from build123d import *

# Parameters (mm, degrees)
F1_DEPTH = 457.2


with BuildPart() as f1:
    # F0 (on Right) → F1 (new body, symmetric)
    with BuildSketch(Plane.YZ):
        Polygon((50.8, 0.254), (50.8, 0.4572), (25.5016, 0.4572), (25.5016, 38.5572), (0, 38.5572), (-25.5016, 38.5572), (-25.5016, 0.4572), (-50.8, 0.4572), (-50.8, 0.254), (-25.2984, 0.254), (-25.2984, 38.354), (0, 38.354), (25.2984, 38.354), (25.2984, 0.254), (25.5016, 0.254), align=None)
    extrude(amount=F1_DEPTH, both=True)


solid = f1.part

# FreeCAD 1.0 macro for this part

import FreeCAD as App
import Part
import Sketcher
Q = App.Units.Quantity


def add_polygon(sketch, points):
    """Adds a closed chain of lines whose ends are joined by coincident constraints."""
    first, n = sketch.GeometryCount, len(points)
    for a, b in zip(points, points[1:] + points[:1]):
        sketch.addGeometry(Part.LineSegment(App.Vector(*a, 0), App.Vector(*b, 0)), False)
    for i in range(n):
        sketch.addConstraint(Sketcher.Constraint("Coincident", first + i, 2, first + (i + 1) % n, 1))

doc = App.newDocument("Part")
body = doc.addObject("PartDesign::Body", "Body")

# Sketch on YZ plane
sketch1 = body.newObject("Sketcher::SketchObject", "Sketch")
sketch1.AttachmentSupport = (doc.getObject("YZ_Plane"), [""])
sketch1.MapMode = "FlatFace"
add_polygon(sketch1, [(50.8, 0.25), (50.8, 0.46), (25.5, 0.46), (25.5, 38.56), (-25.5, 38.56), (-25.5, 0.46), (-50.8, 0.46), (-50.8, 0.25), (-25.3, 0.25), (-25.3, 38.35), (25.3, 38.35), (25.3, 0.25)])  # lines 0-11
sketch1.addConstraint(Sketcher.Constraint("Vertical", 0))
sketch1.addConstraint(Sketcher.Constraint("Horizontal", 1))
sketch1.addConstraint(Sketcher.Constraint("Vertical", 2))
sketch1.addConstraint(Sketcher.Constraint("Horizontal", 3))
sketch1.addConstraint(Sketcher.Constraint("Vertical", 4))
sketch1.addConstraint(Sketcher.Constraint("Horizontal", 5))
sketch1.addConstraint(Sketcher.Constraint("Vertical", 6))
sketch1.addConstraint(Sketcher.Constraint("Horizontal", 7))
sketch1.addConstraint(Sketcher.Constraint("Vertical", 8))
sketch1.addConstraint(Sketcher.Constraint("Horizontal", 9))
sketch1.addConstraint(Sketcher.Constraint("Vertical", 10))
sketch1.addConstraint(Sketcher.Constraint("Horizontal", 11))
sketch1.addConstraint(Sketcher.Constraint("Symmetric", 1, 2, 4, 2, -2))
sketch1.addConstraint(Sketcher.Constraint("Symmetric", 7, 2, 10, 2, -2))
sketch1.addConstraint(Sketcher.Constraint("Equal", 1, 5))
sketch1.addConstraint(Sketcher.Constraint("Equal", 4, 8))
sketch1.addConstraint(Sketcher.Constraint("DistanceY", 2, 1, 2, 2, Q("1.5 in")))
sketch1.addConstraint(Sketcher.Constraint("DistanceX", -1, 1, 0, 2, Q("2 in")))
sketch1.addConstraint(Sketcher.Constraint("DistanceX", 7, 2, 1, 2, Q("2 in")))
sketch1.addConstraint(Sketcher.Constraint("DistanceX", 1, 2, 1, 1, Q("0.996 in")))
sketch1.addConstraint(Sketcher.Constraint("DistanceY", 0, 1, 0, 2, Q("0.008 in")))
sketch1.addConstraint(Sketcher.Constraint("DistanceY", -1, 1, 6, 2, Q("0.01 in")))
pad1 = body.newObject("PartDesign::Pad", "Pad")
pad1.Profile = sketch1
pad1.Length = Q("36 in")
pad1.Midplane = True

doc.recompute()
